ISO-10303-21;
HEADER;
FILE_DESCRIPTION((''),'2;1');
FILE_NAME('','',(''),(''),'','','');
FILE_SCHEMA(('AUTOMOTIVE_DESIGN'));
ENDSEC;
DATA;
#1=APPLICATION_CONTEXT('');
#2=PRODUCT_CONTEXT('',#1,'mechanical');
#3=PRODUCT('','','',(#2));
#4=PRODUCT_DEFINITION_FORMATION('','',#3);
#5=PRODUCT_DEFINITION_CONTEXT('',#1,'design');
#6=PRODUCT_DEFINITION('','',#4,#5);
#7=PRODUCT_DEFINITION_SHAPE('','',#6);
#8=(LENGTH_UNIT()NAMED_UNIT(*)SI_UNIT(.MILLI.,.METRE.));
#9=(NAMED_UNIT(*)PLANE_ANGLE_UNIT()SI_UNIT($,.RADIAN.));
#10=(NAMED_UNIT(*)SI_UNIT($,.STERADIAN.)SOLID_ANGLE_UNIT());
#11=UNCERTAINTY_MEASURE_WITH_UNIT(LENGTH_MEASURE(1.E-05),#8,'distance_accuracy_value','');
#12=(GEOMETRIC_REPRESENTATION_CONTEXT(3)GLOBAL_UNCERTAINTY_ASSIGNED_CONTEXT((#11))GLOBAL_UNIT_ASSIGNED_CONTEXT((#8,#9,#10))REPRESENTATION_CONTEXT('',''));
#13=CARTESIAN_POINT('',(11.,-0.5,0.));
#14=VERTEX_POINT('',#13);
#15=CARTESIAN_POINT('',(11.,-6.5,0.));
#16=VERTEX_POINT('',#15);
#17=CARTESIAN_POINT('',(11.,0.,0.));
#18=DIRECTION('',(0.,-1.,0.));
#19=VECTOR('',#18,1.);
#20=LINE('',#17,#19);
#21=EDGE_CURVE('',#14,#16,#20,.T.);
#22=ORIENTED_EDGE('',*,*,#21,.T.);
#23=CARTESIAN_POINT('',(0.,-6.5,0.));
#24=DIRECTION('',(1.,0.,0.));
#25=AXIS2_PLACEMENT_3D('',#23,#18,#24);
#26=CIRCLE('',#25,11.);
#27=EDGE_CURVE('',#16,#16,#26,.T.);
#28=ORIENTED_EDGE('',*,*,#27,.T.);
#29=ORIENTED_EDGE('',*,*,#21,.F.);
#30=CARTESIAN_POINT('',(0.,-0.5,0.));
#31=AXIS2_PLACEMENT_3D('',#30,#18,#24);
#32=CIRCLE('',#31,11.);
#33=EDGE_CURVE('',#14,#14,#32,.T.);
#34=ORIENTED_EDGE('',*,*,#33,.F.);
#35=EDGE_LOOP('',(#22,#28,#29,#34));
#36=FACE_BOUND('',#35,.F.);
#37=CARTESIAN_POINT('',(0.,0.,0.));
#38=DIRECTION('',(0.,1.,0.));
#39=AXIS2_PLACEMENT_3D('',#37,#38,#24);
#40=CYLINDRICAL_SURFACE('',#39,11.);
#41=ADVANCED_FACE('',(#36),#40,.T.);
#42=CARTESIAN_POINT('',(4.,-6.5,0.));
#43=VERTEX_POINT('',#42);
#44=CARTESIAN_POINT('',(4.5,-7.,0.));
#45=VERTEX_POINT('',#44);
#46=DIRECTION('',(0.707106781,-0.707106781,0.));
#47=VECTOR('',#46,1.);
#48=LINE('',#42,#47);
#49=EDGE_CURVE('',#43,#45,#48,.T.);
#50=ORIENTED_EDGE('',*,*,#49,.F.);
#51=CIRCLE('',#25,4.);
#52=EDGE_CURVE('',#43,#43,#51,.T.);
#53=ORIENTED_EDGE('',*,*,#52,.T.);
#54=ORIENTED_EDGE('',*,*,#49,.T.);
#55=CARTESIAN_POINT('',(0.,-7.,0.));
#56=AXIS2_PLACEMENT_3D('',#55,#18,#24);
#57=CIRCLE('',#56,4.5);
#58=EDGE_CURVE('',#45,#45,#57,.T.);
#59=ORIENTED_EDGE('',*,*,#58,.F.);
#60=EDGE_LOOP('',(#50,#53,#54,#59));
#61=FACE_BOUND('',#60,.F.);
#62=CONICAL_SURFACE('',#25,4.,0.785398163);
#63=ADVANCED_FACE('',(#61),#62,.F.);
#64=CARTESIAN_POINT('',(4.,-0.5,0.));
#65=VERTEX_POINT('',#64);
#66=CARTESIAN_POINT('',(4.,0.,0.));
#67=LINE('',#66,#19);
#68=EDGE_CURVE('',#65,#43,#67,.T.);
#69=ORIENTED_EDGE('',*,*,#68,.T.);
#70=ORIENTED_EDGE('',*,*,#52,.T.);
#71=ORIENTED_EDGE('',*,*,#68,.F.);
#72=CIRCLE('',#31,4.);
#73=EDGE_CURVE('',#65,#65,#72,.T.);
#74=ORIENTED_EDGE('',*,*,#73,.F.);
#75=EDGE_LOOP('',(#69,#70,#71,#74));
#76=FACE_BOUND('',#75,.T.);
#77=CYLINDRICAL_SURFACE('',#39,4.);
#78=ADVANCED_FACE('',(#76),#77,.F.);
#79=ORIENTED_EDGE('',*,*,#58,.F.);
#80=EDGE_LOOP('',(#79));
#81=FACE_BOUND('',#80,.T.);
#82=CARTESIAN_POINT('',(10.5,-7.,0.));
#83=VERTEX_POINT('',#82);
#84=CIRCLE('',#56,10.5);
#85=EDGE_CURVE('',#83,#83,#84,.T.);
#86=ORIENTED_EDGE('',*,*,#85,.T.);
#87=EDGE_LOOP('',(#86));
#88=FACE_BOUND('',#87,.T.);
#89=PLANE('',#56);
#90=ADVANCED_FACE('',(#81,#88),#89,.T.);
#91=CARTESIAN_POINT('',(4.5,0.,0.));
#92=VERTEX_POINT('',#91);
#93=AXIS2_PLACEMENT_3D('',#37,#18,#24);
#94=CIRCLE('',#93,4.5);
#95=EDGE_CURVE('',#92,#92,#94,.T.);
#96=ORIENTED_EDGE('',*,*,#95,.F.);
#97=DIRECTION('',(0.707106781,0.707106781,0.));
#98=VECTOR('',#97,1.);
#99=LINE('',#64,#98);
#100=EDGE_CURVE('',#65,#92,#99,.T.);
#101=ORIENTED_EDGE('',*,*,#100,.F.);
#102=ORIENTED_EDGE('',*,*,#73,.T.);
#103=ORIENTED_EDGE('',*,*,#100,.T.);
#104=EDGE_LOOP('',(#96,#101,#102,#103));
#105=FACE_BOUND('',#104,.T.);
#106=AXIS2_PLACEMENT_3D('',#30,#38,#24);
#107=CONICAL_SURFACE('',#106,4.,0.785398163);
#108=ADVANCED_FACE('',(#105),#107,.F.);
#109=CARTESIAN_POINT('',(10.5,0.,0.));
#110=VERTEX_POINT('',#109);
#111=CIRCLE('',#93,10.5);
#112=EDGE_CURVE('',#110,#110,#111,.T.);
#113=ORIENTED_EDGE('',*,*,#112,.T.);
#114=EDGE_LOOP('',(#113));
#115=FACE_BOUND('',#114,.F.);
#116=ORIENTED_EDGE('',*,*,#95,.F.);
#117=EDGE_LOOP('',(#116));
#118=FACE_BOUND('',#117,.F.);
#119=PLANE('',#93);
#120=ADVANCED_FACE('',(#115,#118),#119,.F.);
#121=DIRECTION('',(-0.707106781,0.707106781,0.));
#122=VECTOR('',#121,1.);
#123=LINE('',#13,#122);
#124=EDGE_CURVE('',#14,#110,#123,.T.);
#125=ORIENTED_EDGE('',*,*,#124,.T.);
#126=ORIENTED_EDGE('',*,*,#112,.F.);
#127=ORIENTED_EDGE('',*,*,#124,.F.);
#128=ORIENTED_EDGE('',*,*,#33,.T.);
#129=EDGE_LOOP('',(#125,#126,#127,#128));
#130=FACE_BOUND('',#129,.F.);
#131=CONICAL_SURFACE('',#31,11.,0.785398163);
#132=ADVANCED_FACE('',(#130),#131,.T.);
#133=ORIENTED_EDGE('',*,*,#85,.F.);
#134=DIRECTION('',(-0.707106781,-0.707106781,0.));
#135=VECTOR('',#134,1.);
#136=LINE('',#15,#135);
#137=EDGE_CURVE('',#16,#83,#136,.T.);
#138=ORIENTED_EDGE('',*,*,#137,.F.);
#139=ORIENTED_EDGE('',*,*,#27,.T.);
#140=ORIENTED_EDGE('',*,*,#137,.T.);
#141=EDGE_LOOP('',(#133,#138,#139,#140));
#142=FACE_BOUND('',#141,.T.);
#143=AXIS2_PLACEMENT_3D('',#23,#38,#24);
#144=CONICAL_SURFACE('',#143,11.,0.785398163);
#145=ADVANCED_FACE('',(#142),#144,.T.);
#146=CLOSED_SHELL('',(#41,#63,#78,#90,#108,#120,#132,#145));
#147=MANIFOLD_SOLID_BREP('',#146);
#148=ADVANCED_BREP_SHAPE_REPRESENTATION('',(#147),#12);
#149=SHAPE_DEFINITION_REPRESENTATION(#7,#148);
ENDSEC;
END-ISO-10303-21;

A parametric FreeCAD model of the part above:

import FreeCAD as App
import Part
import Sketcher

V = App.Vector
Q = App.Units.Quantity

doc = App.newDocument("Part")
body = doc.addObject("PartDesign::Body", "Body")

sketch1 = doc.addObject("Sketcher::SketchObject", "Sketch")
body.addObject(sketch1)
sketch1.AttachmentSupport = (doc.XZ_Plane, [""])
sketch1.MapMode = "FlatFace"
sketch1.addGeometry(Part.Circle(V(0, 0, 0), V(0, 0, 1), 11), False)
sketch1.addGeometry(Part.Circle(V(0, 0, 0), V(0, 0, 1), 4), False)
sketch1.addConstraint(Sketcher.Constraint("Coincident", 0, 3, -1, 1))
sketch1.addConstraint(Sketcher.Constraint("Coincident", 1, 3, -1, 1))
sketch1.addConstraint(Sketcher.Constraint("Diameter", 0, Q("22 mm")))
sketch1.addConstraint(Sketcher.Constraint("Diameter", 1, Q("8 mm")))
pad1 = doc.addObject("PartDesign::Pad", "Pad")
body.addObject(pad1)
pad1.Profile = sketch1
pad1.Length = 7
doc.recompute()

chamfer = doc.addObject("PartDesign::Chamfer", "Chamfer")
body.addObject(chamfer)
chamfer.Base = (pad1, ["Edge1"])
chamfer.UseAllEdges = True
chamfer.Size = 0.5

doc.recompute()
